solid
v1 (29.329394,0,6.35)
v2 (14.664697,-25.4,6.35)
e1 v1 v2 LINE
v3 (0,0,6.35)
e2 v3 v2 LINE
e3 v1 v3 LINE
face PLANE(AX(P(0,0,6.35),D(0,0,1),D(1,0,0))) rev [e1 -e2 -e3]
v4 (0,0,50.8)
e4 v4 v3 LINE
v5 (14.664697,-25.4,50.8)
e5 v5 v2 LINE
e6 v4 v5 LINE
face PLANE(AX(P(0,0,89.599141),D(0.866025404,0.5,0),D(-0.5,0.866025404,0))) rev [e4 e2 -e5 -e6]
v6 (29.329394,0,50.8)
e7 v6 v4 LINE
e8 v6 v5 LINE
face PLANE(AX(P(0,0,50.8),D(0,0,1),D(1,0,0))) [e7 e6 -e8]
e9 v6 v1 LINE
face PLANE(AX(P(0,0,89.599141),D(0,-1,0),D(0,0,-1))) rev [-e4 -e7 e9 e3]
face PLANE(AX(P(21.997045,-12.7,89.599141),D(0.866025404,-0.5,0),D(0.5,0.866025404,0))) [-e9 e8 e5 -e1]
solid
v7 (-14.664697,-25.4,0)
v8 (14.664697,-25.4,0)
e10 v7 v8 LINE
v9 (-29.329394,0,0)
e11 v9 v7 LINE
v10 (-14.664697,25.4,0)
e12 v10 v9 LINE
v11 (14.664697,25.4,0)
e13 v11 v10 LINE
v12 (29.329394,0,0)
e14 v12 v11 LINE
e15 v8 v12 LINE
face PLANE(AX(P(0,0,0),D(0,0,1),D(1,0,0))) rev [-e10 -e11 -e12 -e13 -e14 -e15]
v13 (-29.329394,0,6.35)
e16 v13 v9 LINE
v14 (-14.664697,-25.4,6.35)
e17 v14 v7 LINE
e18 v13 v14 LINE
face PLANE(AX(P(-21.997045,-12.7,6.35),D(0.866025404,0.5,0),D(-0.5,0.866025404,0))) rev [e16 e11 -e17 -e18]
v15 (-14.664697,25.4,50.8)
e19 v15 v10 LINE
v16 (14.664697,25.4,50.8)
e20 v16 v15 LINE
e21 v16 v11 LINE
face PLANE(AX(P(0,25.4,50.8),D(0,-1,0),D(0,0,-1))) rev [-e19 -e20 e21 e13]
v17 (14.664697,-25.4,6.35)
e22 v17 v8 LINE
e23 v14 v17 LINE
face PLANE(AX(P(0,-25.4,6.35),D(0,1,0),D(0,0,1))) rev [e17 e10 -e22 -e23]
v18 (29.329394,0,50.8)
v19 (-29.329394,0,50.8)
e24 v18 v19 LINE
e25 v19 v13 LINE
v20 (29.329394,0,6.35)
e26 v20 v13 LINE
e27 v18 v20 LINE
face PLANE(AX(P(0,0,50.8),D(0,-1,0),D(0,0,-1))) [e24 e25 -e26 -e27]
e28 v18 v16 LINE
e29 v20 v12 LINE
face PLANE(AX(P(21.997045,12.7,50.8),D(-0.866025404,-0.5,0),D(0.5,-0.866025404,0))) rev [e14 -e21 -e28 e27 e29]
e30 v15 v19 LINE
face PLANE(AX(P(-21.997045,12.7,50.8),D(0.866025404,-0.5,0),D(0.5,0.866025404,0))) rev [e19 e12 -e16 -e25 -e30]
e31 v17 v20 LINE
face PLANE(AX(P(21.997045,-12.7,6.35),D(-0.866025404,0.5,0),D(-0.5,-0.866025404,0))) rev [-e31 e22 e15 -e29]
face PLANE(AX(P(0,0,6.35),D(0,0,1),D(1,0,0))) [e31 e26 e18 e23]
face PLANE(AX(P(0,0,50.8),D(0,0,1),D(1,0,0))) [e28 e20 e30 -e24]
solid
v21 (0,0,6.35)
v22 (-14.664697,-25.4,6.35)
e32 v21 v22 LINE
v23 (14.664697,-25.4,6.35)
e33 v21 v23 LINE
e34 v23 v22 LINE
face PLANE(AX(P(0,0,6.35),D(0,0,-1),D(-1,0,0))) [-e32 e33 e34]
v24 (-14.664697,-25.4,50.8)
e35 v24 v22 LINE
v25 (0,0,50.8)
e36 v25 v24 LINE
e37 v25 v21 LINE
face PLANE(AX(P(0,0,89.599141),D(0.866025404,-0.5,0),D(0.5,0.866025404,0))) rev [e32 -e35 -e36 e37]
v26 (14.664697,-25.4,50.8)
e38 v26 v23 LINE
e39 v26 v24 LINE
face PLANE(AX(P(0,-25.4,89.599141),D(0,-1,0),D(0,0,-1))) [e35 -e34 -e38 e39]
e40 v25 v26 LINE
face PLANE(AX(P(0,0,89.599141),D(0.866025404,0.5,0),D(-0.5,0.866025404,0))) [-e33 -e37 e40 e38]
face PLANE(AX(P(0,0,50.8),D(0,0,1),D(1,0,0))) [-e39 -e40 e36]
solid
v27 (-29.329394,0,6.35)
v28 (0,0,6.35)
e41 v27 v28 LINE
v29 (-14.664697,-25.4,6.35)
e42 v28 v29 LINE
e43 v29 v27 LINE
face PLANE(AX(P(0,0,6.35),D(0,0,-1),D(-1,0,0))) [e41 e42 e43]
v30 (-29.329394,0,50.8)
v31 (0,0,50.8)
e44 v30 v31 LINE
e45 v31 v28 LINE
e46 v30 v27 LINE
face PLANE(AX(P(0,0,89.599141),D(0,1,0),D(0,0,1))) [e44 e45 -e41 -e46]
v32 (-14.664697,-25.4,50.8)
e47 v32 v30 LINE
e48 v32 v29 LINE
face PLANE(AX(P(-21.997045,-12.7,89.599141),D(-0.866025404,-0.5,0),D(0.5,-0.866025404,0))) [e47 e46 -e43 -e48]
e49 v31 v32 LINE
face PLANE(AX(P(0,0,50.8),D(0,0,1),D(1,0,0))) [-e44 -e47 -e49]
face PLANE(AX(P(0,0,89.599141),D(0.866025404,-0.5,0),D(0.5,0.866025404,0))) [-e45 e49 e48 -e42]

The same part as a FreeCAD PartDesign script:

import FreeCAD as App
import Part
import Sketcher

V = App.Vector
Q = App.Units.Quantity

doc = App.newDocument("Part")
params = doc.addObject("Spreadsheet::Sheet", "Params")
for row, (alias, value) in enumerate([
    ("pad1_length", "2 in"),
    ("pad2_length", "0.25 in"),
    ("pad3_length", "1.75 in"),
    ("pad4_length", "1.75 in"),
    ("pad5_length", "1.75 in"),
], start=1):
    params.set(f"A{row}", alias)
    params.set(f"B{row}", "=" + value)
    params.setAlias(f"B{row}", alias)

body = doc.addObject("PartDesign::Body", "Body")

sketch1 = body.newObject("Sketcher::SketchObject", "Sketch")
sketch1.AttachmentSupport = (doc.getObject("XY_Plane"), [""])
sketch1.MapMode = "FlatFace"
sketch1.addGeometry(Part.LineSegment(V(-29.329394, 0, 0), V(29.329394, 0, 0)), False)
sketch1.addGeometry(Part.LineSegment(V(29.329394, 0, 0), V(14.664697, 25.4, 0)), False)
sketch1.addGeometry(Part.LineSegment(V(14.664697, 25.4, 0), V(-14.664697, 25.4, 0)), False)
sketch1.addGeometry(Part.LineSegment(V(-14.664697, 25.4, 0), V(-29.329394, 0, 0)), False)
sketch1.addConstraint(Sketcher.Constraint("Coincident", 0, 2, 1, 1))
sketch1.addConstraint(Sketcher.Constraint("Coincident", 1, 2, 2, 1))
sketch1.addConstraint(Sketcher.Constraint("Coincident", 2, 2, 3, 1))
sketch1.addConstraint(Sketcher.Constraint("Coincident", 3, 2, 0, 1))
sketch1.addConstraint(Sketcher.Constraint("Horizontal", 0))
sketch1.addConstraint(Sketcher.Constraint("Horizontal", 2))
sketch1.addConstraint(Sketcher.Constraint("Symmetric", 0, 2, 3, 2, -1, 1))
sketch1.addConstraint(Sketcher.Constraint("Equal", 1, 3))
sketch1.addConstraint(Sketcher.Constraint("DistanceY", -1, 1, 1, 2, Q("1 in")))
sketch1.addConstraint(Sketcher.Constraint("Angle", 1, Q("120 deg")))
sketch1.addConstraint(Sketcher.Constraint("DistanceX", 0, 1, 0, 2, Q("58.658787 mm")))
pad1 = body.newObject("PartDesign::Pad", "Pad")
pad1.Profile = sketch1
pad1.setExpression("Length", "Params.pad1_length")

sketch2 = body.newObject("Sketcher::SketchObject", "Sketch001")
sketch2.AttachmentSupport = (doc.getObject("XY_Plane"), [""])
sketch2.MapMode = "FlatFace"
sketch2.addGeometry(Part.LineSegment(V(-29.329394, 0, 0), V(-14.664697, -25.4, 0)), False)
sketch2.addGeometry(Part.LineSegment(V(-14.664697, -25.4, 0), V(14.664697, -25.4, 0)), False)
sketch2.addGeometry(Part.LineSegment(V(14.664697, -25.4, 0), V(29.329394, 0, 0)), False)
sketch2.addGeometry(Part.LineSegment(V(29.329394, 0, 0), V(-29.329394, 0, 0)), False)
sketch2.addConstraint(Sketcher.Constraint("Coincident", 0, 2, 1, 1))
sketch2.addConstraint(Sketcher.Constraint("Coincident", 1, 2, 2, 1))
sketch2.addConstraint(Sketcher.Constraint("Coincident", 2, 2, 3, 1))
sketch2.addConstraint(Sketcher.Constraint("Coincident", 3, 2, 0, 1))
sketch2.addConstraint(Sketcher.Constraint("Horizontal", 1))
sketch2.addConstraint(Sketcher.Constraint("Horizontal", 3))
sketch2.addConstraint(Sketcher.Constraint("Symmetric", 2, 2, 3, 2, -1, 1))
sketch2.addConstraint(Sketcher.Constraint("Equal", 0, 2))
sketch2.addConstraint(Sketcher.Constraint("DistanceY", 0, 2, -1, 1, Q("1 in")))
sketch2.addConstraint(Sketcher.Constraint("Angle", 0, Q("-60 deg")))
sketch2.addConstraint(Sketcher.Constraint("DistanceX", 1, 1, 1, 2, Q("29.329394 mm")))
pad2 = body.newObject("PartDesign::Pad", "Pad001")
pad2.Profile = sketch2
pad2.setExpression("Length", "Params.pad2_length")
body2 = doc.addObject("PartDesign::Body", "Body001")

sketch3 = body2.newObject("Sketcher::SketchObject", "Sketch002")
sketch3.AttachmentSupport = (doc.getObject("XY_Plane001"), [""])
sketch3.MapMode = "FlatFace"
sketch3.AttachmentOffset = App.Placement(V(0, 0, 0.25 * 25.4), App.Rotation())
sketch3.addGeometry(Part.LineSegment(V(-29.329394, 0, 0), V(-14.664697, -25.4, 0)), False)
sketch3.addGeometry(Part.LineSegment(V(-14.664697, -25.4, 0), V(0, 0, 0)), False)
sketch3.addGeometry(Part.LineSegment(V(0, 0, 0), V(-29.329394, 0, 0)), False)
sketch3.addConstraint(Sketcher.Constraint("Coincident", 0, 2, 1, 1))
sketch3.addConstraint(Sketcher.Constraint("Coincident", 1, 2, 2, 1))
sketch3.addConstraint(Sketcher.Constraint("Coincident", 2, 2, 0, 1))
sketch3.addConstraint(Sketcher.Constraint("Horizontal", 2))
sketch3.addConstraint(Sketcher.Constraint("Coincident", 1, 2, -1, 1))
sketch3.addConstraint(Sketcher.Constraint("Equal", 0, 1))
sketch3.addConstraint(Sketcher.Constraint("DistanceY", 0, 2, -1, 1, Q("1 in")))
sketch3.addConstraint(Sketcher.Constraint("Angle", 0, Q("-60 deg")))
pad3 = body2.newObject("PartDesign::Pad", "Pad002")
pad3.Profile = sketch3
pad3.setExpression("Length", "Params.pad3_length")
body3 = doc.addObject("PartDesign::Body", "Body002")

sketch4 = body3.newObject("Sketcher::SketchObject", "Sketch003")
sketch4.AttachmentSupport = (doc.getObject("XY_Plane002"), [""])
sketch4.MapMode = "FlatFace"
sketch4.AttachmentOffset = App.Placement(V(0, 0, 0.25 * 25.4), App.Rotation())
sketch4.addGeometry(Part.LineSegment(V(-14.664697, -25.4, 0), V(14.664697, -25.4, 0)), False)
sketch4.addGeometry(Part.LineSegment(V(14.664697, -25.4, 0), V(0, 0, 0)), False)
sketch4.addGeometry(Part.LineSegment(V(0, 0, 0), V(-14.664697, -25.4, 0)), False)
sketch4.addConstraint(Sketcher.Constraint("Coincident", 0, 2, 1, 1))
sketch4.addConstraint(Sketcher.Constraint("Coincident", 1, 2, 2, 1))
sketch4.addConstraint(Sketcher.Constraint("Coincident", 2, 2, 0, 1))
sketch4.addConstraint(Sketcher.Constraint("Horizontal", 0))
sketch4.addConstraint(Sketcher.Constraint("Coincident", 1, 2, -1, 1))
sketch4.addConstraint(Sketcher.Constraint("Equal", 1, 2))
sketch4.addConstraint(Sketcher.Constraint("DistanceY", 0, 2, -1, 1, Q("1 in")))
sketch4.addConstraint(Sketcher.Constraint("Angle", 1, Q("120 deg")))
pad4 = body3.newObject("PartDesign::Pad", "Pad003")
pad4.Profile = sketch4
pad4.setExpression("Length", "Params.pad4_length")
body4 = doc.addObject("PartDesign::Body", "Body003")

sketch5 = body4.newObject("Sketcher::SketchObject", "Sketch004")
sketch5.AttachmentSupport = (doc.getObject("XY_Plane003"), [""])
sketch5.MapMode = "FlatFace"
sketch5.AttachmentOffset = App.Placement(V(0, 0, 0.25 * 25.4), App.Rotation())
sketch5.addGeometry(Part.LineSegment(V(0, 0, 0), V(14.664697, -25.4, 0)), False)
sketch5.addGeometry(Part.LineSegment(V(14.664697, -25.4, 0), V(29.329394, 0, 0)), False)
sketch5.addGeometry(Part.LineSegment(V(29.329394, 0, 0), V(0, 0, 0)), False)
sketch5.addConstraint(Sketcher.Constraint("Coincident", 0, 2, 1, 1))
sketch5.addConstraint(Sketcher.Constraint("Coincident", 1, 2, 2, 1))
sketch5.addConstraint(Sketcher.Constraint("Coincident", 2, 2, 0, 1))
sketch5.addConstraint(Sketcher.Constraint("Horizontal", 2))
sketch5.addConstraint(Sketcher.Constraint("Coincident", 2, 2, -1, 1))
sketch5.addConstraint(Sketcher.Constraint("Equal", 0, 1))
sketch5.addConstraint(Sketcher.Constraint("DistanceY", 0, 2, -1, 1, Q("1 in")))
sketch5.addConstraint(Sketcher.Constraint("Angle", 0, Q("-60 deg")))
pad5 = body4.newObject("PartDesign::Pad", "Pad004")
pad5.Profile = sketch5
pad5.setExpression("Length", "Params.pad5_length")

doc.recompute()
